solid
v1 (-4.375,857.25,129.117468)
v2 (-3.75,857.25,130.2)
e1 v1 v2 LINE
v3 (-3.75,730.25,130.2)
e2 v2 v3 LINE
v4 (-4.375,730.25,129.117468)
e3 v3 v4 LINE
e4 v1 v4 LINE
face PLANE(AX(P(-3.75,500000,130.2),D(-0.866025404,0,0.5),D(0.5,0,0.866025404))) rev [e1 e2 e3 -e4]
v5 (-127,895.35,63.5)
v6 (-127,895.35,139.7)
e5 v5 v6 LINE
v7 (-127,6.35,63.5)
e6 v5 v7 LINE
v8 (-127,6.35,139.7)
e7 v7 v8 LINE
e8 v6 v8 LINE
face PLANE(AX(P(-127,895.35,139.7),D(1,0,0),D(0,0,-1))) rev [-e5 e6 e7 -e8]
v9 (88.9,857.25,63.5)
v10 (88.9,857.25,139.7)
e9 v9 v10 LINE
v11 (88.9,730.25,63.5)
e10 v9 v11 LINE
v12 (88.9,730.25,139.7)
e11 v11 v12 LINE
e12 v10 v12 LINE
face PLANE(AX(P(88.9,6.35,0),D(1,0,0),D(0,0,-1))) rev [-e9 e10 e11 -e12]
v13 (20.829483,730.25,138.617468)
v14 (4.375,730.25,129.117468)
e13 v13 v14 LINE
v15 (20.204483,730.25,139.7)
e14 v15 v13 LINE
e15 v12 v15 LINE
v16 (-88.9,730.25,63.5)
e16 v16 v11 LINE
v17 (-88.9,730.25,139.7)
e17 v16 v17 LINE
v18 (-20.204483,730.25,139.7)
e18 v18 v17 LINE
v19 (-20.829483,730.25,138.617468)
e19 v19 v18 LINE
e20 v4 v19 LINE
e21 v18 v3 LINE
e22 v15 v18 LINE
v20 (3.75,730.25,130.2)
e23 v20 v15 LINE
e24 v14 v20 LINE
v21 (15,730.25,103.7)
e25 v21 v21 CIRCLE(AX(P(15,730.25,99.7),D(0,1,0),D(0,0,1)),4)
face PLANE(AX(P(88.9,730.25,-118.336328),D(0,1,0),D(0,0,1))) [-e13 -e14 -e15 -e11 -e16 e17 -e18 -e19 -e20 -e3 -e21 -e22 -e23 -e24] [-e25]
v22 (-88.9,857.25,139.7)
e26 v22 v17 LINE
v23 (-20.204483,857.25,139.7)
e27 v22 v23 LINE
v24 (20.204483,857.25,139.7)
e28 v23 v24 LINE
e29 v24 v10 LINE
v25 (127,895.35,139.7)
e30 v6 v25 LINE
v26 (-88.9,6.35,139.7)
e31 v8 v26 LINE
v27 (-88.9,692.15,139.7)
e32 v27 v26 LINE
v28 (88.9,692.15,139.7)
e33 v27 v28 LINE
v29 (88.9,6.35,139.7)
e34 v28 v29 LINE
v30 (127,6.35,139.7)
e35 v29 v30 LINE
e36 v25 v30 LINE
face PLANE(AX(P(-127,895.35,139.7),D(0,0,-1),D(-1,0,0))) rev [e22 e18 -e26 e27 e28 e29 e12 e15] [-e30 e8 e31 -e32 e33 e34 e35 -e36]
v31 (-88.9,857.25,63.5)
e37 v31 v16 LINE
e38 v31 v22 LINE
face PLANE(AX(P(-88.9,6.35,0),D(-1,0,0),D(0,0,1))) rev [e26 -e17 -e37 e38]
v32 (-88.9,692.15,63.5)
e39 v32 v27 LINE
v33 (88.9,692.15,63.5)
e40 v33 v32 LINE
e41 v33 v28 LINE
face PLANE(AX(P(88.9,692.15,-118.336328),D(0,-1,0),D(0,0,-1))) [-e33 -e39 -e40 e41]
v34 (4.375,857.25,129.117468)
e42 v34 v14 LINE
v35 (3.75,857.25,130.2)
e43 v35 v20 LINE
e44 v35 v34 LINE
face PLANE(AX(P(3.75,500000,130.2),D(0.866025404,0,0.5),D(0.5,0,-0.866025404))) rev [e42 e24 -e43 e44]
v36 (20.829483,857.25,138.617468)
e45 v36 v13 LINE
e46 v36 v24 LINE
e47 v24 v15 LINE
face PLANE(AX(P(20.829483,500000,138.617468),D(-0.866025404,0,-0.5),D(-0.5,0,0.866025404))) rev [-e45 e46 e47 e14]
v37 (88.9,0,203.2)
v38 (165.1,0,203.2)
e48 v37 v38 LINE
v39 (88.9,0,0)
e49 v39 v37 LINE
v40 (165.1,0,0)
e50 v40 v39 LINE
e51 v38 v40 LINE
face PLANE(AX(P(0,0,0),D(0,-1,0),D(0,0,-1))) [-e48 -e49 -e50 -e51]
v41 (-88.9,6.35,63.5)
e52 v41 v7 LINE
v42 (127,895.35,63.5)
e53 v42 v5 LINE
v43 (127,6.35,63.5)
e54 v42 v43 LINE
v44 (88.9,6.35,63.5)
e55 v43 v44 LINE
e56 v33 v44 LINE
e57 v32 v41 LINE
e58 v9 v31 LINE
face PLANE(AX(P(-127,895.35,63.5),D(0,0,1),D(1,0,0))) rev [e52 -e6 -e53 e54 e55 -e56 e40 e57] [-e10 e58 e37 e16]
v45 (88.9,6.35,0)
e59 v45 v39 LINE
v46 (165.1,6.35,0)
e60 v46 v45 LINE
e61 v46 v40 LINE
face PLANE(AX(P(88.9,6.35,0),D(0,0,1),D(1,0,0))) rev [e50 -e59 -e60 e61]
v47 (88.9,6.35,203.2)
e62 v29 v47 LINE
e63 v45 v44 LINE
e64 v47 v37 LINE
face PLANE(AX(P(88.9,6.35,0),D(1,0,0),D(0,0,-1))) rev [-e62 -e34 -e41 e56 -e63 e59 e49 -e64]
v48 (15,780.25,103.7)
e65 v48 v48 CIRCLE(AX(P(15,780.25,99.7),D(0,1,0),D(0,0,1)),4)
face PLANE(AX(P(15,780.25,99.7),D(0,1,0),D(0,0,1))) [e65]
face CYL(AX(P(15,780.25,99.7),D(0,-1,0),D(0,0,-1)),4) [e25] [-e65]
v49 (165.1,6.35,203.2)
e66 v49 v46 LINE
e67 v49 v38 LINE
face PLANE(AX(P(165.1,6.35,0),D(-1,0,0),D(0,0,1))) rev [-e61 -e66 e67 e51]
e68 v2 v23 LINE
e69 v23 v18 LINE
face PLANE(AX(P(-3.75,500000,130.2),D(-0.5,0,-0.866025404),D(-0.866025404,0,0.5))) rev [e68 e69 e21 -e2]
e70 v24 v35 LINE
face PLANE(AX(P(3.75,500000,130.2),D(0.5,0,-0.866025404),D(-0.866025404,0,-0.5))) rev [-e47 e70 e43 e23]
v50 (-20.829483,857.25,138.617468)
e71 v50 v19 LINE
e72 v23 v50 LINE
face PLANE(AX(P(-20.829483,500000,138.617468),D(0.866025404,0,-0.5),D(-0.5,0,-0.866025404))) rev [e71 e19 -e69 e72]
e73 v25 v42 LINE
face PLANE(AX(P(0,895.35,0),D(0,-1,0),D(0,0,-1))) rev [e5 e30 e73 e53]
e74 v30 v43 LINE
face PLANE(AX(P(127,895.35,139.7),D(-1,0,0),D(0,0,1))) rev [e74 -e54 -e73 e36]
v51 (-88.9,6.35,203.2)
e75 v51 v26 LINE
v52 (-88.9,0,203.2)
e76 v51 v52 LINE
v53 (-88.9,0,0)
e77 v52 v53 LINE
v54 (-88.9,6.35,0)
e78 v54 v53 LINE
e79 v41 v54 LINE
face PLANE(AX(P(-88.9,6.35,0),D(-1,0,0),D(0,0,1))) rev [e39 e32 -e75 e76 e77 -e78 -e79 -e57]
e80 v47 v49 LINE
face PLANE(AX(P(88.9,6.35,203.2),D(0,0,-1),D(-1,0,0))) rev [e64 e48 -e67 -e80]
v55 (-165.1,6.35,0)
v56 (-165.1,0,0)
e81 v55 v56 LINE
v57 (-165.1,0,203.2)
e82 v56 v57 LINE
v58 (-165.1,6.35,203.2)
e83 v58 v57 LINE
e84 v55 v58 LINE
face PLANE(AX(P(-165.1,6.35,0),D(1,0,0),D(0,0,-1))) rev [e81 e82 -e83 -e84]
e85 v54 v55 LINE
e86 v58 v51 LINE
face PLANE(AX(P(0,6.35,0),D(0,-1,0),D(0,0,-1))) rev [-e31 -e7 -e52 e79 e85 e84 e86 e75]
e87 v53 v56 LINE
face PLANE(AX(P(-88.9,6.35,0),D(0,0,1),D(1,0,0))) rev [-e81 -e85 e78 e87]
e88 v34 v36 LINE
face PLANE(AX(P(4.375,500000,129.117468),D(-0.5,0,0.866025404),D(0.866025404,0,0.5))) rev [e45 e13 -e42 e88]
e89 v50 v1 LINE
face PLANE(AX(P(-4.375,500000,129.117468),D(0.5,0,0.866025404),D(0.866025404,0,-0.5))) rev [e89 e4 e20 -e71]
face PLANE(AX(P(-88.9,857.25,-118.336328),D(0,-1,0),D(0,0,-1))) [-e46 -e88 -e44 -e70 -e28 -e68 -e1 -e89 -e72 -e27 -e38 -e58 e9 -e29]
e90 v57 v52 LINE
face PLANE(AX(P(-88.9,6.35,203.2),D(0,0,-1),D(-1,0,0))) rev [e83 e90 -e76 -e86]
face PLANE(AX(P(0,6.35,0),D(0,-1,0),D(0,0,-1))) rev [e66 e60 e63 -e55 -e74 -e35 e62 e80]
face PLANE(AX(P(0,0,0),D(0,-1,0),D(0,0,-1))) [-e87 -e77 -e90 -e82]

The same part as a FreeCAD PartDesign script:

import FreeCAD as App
import Part
import Sketcher

V = App.Vector
Q = App.Units.Quantity


def add_polygon(sketch, points):
    """Adds a closed chain of lines whose ends are joined by coincident constraints."""
    first, n = sketch.GeometryCount, len(points)
    for a, b in zip(points, points[1:] + points[:1]):
        sketch.addGeometry(Part.LineSegment(App.Vector(*a, 0), App.Vector(*b, 0)), False)
    for i in range(n):
        sketch.addConstraint(Sketcher.Constraint("Coincident", first + i, 2, first + (i + 1) % n, 1))

doc = App.newDocument("Part")
body = doc.addObject("PartDesign::Body", "Body")

# Sketch on XZ plane
sketch1 = body.newObject("Sketcher::SketchObject", "Sketch")
sketch1.AttachmentSupport = (doc.getObject("XZ_Plane"), [""])
sketch1.MapMode = "FlatFace"
add_polygon(sketch1, [(89, 0), (89, 203), (165, 203), (165, 0)])  # lines 0-3
sketch1.addConstraint([
    Sketcher.Constraint("Vertical", 0),
    Sketcher.Constraint("Horizontal", 1),
    Sketcher.Constraint("Vertical", 2),
    Sketcher.Constraint("Horizontal", 3),
    Sketcher.Constraint("PointOnObject", 2, 2, -1),
    Sketcher.Constraint("DistanceX", 1, 1, 1, 2, Q("3 in")),
    Sketcher.Constraint("DistanceY", 0, 1, 0, 2, Q("8 in")),
    Sketcher.Constraint("DistanceX", -1, 1, 0, 2, Q("3.5 in")),
])
pad1 = body.newObject("PartDesign::Pad", "Pad")
pad1.Profile = sketch1
pad1.Length = Q("0.25 in")
pad1.Reversed = True
body2 = doc.addObject("PartDesign::Body", "Body001")

# Sketch on XZ plane
sketch2 = body2.newObject("Sketcher::SketchObject", "Sketch001")
sketch2.AttachmentSupport = (doc.getObject("XZ_Plane001"), [""])
sketch2.MapMode = "FlatFace"
add_polygon(sketch2, [(-165, 0), (-165, 203), (-89, 203), (-89, 0)])  # lines 0-3
sketch2.addConstraint([
    Sketcher.Constraint("Vertical", 0),
    Sketcher.Constraint("Horizontal", 1),
    Sketcher.Constraint("Vertical", 2),
    Sketcher.Constraint("Horizontal", 3),
    Sketcher.Constraint("PointOnObject", 2, 2, -1),
    Sketcher.Constraint("DistanceX", 1, 1, 1, 2, Q("3 in")),
    Sketcher.Constraint("DistanceY", 0, 1, 0, 2, Q("8 in")),
    Sketcher.Constraint("DistanceX", 0, 2, -1, 1, Q("6.5 in")),
])
pad2 = body2.newObject("PartDesign::Pad", "Pad001")
pad2.Profile = sketch2
pad2.Length = Q("0.25 in")
pad2.Reversed = True
body.AllowCompound = True
doc.recompute()

boolean = body.newObject("PartDesign::Boolean", "Boolean")
boolean.Type = "Fuse"
boolean.addObjects([body2])

# Sketch on XZ plane
sketch3 = body.newObject("Sketcher::SketchObject", "Sketch002")
sketch3.AttachmentSupport = (doc.getObject("XZ_Plane"), [""])
sketch3.MapMode = "FlatFace"
sketch3.AttachmentOffset = App.Placement(V(0, 0, -0.25 * 25.4), App.Rotation())
add_polygon(sketch3, [(-127, 64), (-127, 140), (-89, 140), (-89, 64)])  # lines 0-3
add_polygon(sketch3, [(89, 64), (89, 140), (127, 140), (127, 64)])  # lines 4-7
sketch3.addConstraint([
    Sketcher.Constraint("Vertical", 0),
    Sketcher.Constraint("Horizontal", 1),
    Sketcher.Constraint("Vertical", 2),
    Sketcher.Constraint("Horizontal", 3),
    Sketcher.Constraint("Vertical", 4),
    Sketcher.Constraint("Horizontal", 5),
    Sketcher.Constraint("Vertical", 6),
    Sketcher.Constraint("Horizontal", 7),
    Sketcher.Constraint("Symmetric", 1, 2, 4, 2, -2),
    Sketcher.Constraint("Symmetric", 3, 2, 6, 2, -2),
    Sketcher.Constraint("DistanceY", 0, 1, 0, 2, Q("3 in")),
    Sketcher.Constraint("DistanceX", 1, 1, 1, 2, Q("1.5 in")),
    Sketcher.Constraint("DistanceX", 0, 2, -1, 1, Q("5 in")),
    Sketcher.Constraint("DistanceY", -1, 1, 0, 2, Q("5.5 in")),
])
pad3 = body.newObject("PartDesign::Pad", "Pad002")
pad3.Profile = sketch3
pad3.Length = Q("35 in")
pad3.Reversed = True

# Sketch on XY plane
sketch4 = body.newObject("Sketcher::SketchObject", "Sketch003")
sketch4.AttachmentSupport = (doc.getObject("XY_Plane"), [""])
sketch4.MapMode = "FlatFace"
sketch4.AttachmentOffset = App.Placement(V(0, 0, 5.5 * 25.4), App.Rotation())
add_polygon(sketch4, [(-89, 895), (-89, 857), (89, 857), (89, 895)])  # lines 0-3
add_polygon(sketch4, [(-89, 730), (-89, 692), (89, 692), (89, 730)])  # lines 4-7
sketch4.addConstraint([
    Sketcher.Constraint("Vertical", 0),
    Sketcher.Constraint("Horizontal", 1),
    Sketcher.Constraint("Vertical", 2),
    Sketcher.Constraint("Horizontal", 3),
    Sketcher.Constraint("Vertical", 4),
    Sketcher.Constraint("Horizontal", 5),
    Sketcher.Constraint("Vertical", 6),
    Sketcher.Constraint("Horizontal", 7),
    Sketcher.Constraint("Vertical", 3, 2, 4, 2),
    Sketcher.Constraint("Vertical", 2, 2, 5, 2),
    Sketcher.Constraint("Equal", 2, 4),
    Sketcher.Constraint("DistanceX", 1, 1, 1, 2, Q("7 in")),
    Sketcher.Constraint("DistanceY", 0, 2, 0, 1, Q("1.5 in")),
    Sketcher.Constraint("DistanceY", 4, 2, 3, 2, Q("8 in")),
    Sketcher.Constraint("DistanceX", 0, 2, -1, 1, Q("3.5 in")),
    Sketcher.Constraint("DistanceY", -1, 1, 0, 2, Q("33.75 in")),
])
pad4 = body.newObject("PartDesign::Pad", "Pad003")
pad4.Profile = sketch4
pad4.Length = Q("3 in")
pad4.Reversed = True

# Sketch on XZ plane
sketch5 = body.newObject("Sketcher::SketchObject", "Sketch004")
sketch5.AttachmentSupport = (doc.getObject("XZ_Plane"), [""])
sketch5.MapMode = "FlatFace"
sketch5.AttachmentOffset = App.Placement(V(0, 0, -28.75 * 25.4), App.Rotation())
add_polygon(sketch5, [(-20.2, 139.7), (-3.8, 130.2), (-4.4, 129.1), (-20.8, 138.6)])  # lines 0-3
sketch5.addConstraint([
    Sketcher.Constraint("Perpendicular", 0, 1),
    Sketcher.Constraint("Perpendicular", 1, 2),
    Sketcher.Constraint("Perpendicular", 2, 3),
    Sketcher.Constraint("Angle", 0, Q("-30 deg")),
    Sketcher.Constraint("DistanceY", -1, 1, 3, 2, Q("5.5 in")),
    Sketcher.Constraint("Distance", 0, Q("19 mm")),
    Sketcher.Constraint("Distance", 1, Q("1.25 mm")),
    Sketcher.Constraint("DistanceX", 0, 2, -1, 1, Q("3.75 mm")),
])
pad5 = body.newObject("PartDesign::Pad", "Pad004")
pad5.Profile = sketch5
pad5.Type = "UpToFirst"
pad5.Reversed = True

# Sketch on XZ plane
sketch6 = body.newObject("Sketcher::SketchObject", "Sketch005")
sketch6.AttachmentSupport = (doc.getObject("XZ_Plane"), [""])
sketch6.MapMode = "FlatFace"
sketch6.AttachmentOffset = App.Placement(V(0, 0, -28.75 * 25.4), App.Rotation())
add_polygon(sketch6, [(20.2, 139.7), (20.8, 138.6), (4.4, 129.1), (3.8, 130.2)])  # lines 0-3
sketch6.addConstraint([
    Sketcher.Constraint("Perpendicular", 0, 1),
    Sketcher.Constraint("Perpendicular", 1, 2),
    Sketcher.Constraint("Perpendicular", 2, 3),
    Sketcher.Constraint("Angle", 0, Q("-60 deg")),
    Sketcher.Constraint("DistanceY", -1, 1, 3, 2, Q("5.5 in")),
    Sketcher.Constraint("Distance", 0, Q("1.25 mm")),
    Sketcher.Constraint("Distance", 1, Q("19 mm")),
    Sketcher.Constraint("DistanceX", -1, 1, 1, 2, Q("4.375 mm")),
])
pad6 = body.newObject("PartDesign::Pad", "Pad005")
pad6.Profile = sketch6
pad6.Type = "UpToFirst"
pad6.Reversed = True

# Sketch on XZ plane
sketch7 = body.newObject("Sketcher::SketchObject", "Sketch006")
sketch7.AttachmentSupport = (doc.getObject("XZ_Plane"), [""])
sketch7.MapMode = "FlatFace"
sketch7.AttachmentOffset = App.Placement(V(0, 0, -28.75 * 25.4), App.Rotation())
sketch7.addGeometry(Part.Circle(V(15, 99.7, 0), V(0, 0, 1), 4), False)
sketch7.addConstraint([
    Sketcher.Constraint("Diameter", 0, Q("8 mm")),
    Sketcher.Constraint("DistanceX", -1, 1, 0, 3, Q("15 mm")),
    Sketcher.Constraint("DistanceY", -1, 1, 0, 3, Q("99.7 mm")),
])
pad7 = body.newObject("PartDesign::Pad", "Pad006")
pad7.Profile = sketch7
pad7.Length = 50
pad7.Reversed = True

doc.recompute()
